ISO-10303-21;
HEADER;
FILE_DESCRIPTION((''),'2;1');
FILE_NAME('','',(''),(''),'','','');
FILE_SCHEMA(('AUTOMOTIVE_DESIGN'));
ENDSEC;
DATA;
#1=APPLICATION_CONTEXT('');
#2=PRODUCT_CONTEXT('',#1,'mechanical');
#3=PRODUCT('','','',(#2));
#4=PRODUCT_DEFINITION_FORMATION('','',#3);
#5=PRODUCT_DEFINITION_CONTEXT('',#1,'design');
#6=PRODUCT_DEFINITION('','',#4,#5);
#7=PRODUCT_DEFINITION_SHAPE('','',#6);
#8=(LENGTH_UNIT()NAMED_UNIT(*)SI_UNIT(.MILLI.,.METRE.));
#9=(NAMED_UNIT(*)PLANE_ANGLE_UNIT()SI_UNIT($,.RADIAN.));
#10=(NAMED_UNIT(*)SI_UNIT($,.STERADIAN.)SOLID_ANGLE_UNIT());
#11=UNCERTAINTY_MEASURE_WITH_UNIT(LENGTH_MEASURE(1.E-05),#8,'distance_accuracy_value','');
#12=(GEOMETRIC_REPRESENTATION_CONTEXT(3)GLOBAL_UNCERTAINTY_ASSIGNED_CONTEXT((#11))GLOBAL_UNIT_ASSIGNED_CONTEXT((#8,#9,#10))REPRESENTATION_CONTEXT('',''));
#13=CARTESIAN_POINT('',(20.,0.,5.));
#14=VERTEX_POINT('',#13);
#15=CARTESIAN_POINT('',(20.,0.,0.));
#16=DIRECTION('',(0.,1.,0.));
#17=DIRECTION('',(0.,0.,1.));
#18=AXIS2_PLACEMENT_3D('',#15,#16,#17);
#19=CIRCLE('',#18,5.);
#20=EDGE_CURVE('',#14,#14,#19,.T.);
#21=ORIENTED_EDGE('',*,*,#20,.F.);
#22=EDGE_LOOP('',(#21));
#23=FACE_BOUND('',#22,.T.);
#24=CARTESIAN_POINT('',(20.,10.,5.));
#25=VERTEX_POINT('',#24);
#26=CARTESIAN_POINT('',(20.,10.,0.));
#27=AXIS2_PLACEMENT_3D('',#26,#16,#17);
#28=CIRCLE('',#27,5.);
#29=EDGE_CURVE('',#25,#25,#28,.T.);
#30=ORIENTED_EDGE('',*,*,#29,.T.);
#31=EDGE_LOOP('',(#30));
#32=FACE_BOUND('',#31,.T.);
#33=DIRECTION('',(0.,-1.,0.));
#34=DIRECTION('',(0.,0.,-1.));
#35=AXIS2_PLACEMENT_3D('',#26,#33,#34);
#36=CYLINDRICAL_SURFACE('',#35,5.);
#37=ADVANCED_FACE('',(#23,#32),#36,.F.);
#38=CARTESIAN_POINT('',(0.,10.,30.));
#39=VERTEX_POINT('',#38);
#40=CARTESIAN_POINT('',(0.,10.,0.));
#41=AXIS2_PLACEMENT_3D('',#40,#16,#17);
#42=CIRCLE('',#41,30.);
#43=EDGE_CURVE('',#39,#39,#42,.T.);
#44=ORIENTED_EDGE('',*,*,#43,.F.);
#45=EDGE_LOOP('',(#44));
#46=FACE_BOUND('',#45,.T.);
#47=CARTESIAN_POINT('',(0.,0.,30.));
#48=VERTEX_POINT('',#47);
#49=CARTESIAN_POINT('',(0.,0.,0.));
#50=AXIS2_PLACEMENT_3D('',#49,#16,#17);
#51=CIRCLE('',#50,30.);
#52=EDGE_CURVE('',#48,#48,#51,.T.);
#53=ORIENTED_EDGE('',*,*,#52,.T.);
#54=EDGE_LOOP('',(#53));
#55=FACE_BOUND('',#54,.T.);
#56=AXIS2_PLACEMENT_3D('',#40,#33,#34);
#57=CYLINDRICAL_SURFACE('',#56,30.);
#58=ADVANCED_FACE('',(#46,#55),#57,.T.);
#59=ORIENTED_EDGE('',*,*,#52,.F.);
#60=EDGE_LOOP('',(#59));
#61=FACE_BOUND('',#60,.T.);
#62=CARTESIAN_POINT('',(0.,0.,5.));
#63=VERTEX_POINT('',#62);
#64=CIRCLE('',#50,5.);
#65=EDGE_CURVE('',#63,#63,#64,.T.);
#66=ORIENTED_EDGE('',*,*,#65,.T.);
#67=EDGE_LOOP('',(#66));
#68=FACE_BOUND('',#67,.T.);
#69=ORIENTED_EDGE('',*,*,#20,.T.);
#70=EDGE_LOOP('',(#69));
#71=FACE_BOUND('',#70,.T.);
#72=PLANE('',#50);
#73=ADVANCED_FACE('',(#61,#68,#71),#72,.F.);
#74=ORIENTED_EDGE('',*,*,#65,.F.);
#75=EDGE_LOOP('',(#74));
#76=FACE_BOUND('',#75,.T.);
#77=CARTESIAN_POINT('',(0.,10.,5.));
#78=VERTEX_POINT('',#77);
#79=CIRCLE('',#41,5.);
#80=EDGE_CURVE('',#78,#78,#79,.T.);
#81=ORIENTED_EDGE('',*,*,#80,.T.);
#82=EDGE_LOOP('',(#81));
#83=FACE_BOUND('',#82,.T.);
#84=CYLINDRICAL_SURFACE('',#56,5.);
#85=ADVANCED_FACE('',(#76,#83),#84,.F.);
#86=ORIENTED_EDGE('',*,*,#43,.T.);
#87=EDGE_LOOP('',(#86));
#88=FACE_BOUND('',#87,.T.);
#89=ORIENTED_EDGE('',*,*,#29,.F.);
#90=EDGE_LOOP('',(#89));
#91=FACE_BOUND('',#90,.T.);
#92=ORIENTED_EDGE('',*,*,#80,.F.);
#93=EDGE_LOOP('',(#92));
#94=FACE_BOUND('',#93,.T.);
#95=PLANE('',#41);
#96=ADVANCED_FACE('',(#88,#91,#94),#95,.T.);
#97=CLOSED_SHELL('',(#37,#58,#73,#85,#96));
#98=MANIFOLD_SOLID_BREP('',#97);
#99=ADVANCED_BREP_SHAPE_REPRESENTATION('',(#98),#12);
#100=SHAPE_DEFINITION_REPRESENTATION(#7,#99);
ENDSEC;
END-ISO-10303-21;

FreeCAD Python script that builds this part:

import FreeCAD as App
import Part
import Sketcher

V = App.Vector

doc = App.newDocument("Part")
params = doc.addObject("Spreadsheet::Sheet", "Params")
for row, (alias, value) in enumerate([
    ("sketch1_diameter", "60 mm"),
    ("sketch1_diameter2", "10 mm"),
    ("pad1_length", "10 mm"),
], start=1):
    params.set(f"A{row}", alias)
    params.set(f"B{row}", "=" + value)
    params.setAlias(f"B{row}", alias)

body = doc.addObject("PartDesign::Body", "Body")

sketch1 = body.newObject("Sketcher::SketchObject", "Sketch")
sketch1.AttachmentSupport = (doc.getObject("XZ_Plane"), [""])
sketch1.MapMode = "FlatFace"
sketch1.addGeometry(Part.Circle(V(0, 0, 0), V(0, 0, 1), 30), False)
sketch1.addGeometry(Part.Circle(V(0, 0, 0), V(0, 0, 1), 5), False)
sketch1.addGeometry(Part.Circle(V(20, 0, 0), V(0, 0, 1), 5), False)
sketch1.addConstraint(Sketcher.Constraint("Coincident", 0, 3, -1, 1))
sketch1.addConstraint(Sketcher.Constraint("Coincident", 1, 3, -1, 1))
sketch1.addConstraint(Sketcher.Constraint("Equal", 1, 2))
sketch1.addConstraint(Sketcher.Constraint("PointOnObject", 2, 3, -1))
sketch1.addConstraint(Sketcher.Constraint("Diameter", 0, 60.0))
sketch1.addConstraint(Sketcher.Constraint("Diameter", 1, 10.0))
sketch1.addConstraint(Sketcher.Constraint("DistanceX", -1, 1, 2, 3, 20.0))
sketch1.setExpression("Constraints[4]", "Params.sketch1_diameter")
sketch1.setExpression("Constraints[5]", "Params.sketch1_diameter2")
pad1 = body.newObject("PartDesign::Pad", "Pad")
pad1.Profile = sketch1
pad1.setExpression("Length", "Params.pad1_length")
pad1.Reversed = True

doc.recompute()
